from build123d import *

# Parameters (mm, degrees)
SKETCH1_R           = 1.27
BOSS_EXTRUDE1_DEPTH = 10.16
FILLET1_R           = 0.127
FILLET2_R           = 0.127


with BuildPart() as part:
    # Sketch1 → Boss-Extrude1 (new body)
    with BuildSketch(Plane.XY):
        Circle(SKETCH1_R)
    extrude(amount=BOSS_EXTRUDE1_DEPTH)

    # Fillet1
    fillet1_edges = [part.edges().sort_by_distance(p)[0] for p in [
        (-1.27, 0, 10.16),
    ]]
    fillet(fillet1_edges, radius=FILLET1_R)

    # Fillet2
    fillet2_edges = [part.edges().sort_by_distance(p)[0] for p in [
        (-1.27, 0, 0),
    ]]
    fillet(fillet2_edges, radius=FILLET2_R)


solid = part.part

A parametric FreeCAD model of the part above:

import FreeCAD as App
import Part
import Sketcher
from FreeCAD import Vector
Q = App.Units.Quantity


def edges_at(feature, points):
    """Names of the edges that pass closest to the given points."""
    edges = feature.Shape.Edges
    near = lambda p: min(range(len(edges)), key=lambda i: edges[i].distToShape(Part.Vertex(*p))[0])
    return sorted({f"Edge{near(p) + 1}" for p in points})

doc = App.newDocument("Part")
params = doc.addObject("Spreadsheet::Sheet", "Params")
for row, (alias, value) in enumerate([
    ("sketch1_diameter", "0.1 in"),
    ("pad1_length", "0.4 in"),
    ("fillet_radius", "0.005 in"),
    ("fillet2_radius", "0.005 in"),
], start=1):
    params.set(f"A{row}", alias)
    params.set(f"B{row}", "=" + value)
    params.setAlias(f"B{row}", alias)

body = doc.addObject("PartDesign::Body", "Body")

# Sketch on XY plane
sketch1 = body.newObject("Sketcher::SketchObject", "Sketch")
sketch1.AttachmentSupport = (doc.getObject("XY_Plane"), [""])
sketch1.MapMode = "FlatFace"
sketch1.addGeometry(Part.Circle(Vector(0, 0, 0), Vector(0, 0, 1), 1.3), False)
sketch1.addConstraint(Sketcher.Constraint("Coincident", 0, 3, -1, 1))
sketch1.addConstraint(Sketcher.Constraint("Diameter", 0, Q("0.1 in")))
sketch1.setExpression("Constraints[1]", "Params.sketch1_diameter")
pad1 = body.newObject("PartDesign::Pad", "Pad")
pad1.Profile = sketch1
pad1.setExpression("Length", "Params.pad1_length")
doc.recompute()

fillet = body.newObject("PartDesign::Fillet", "Fillet")
fillet.Base = (pad1, edges_at(pad1, [(-1.27, 0, 10.16)]))
fillet.setExpression("Radius", "Params.fillet_radius")
doc.recompute()

fillet2 = body.newObject("PartDesign::Fillet", "Fillet001")
fillet2.Base = (fillet, edges_at(fillet, [(-1.27, 0, 0)]))
fillet2.setExpression("Radius", "Params.fillet2_radius")

doc.recompute()
